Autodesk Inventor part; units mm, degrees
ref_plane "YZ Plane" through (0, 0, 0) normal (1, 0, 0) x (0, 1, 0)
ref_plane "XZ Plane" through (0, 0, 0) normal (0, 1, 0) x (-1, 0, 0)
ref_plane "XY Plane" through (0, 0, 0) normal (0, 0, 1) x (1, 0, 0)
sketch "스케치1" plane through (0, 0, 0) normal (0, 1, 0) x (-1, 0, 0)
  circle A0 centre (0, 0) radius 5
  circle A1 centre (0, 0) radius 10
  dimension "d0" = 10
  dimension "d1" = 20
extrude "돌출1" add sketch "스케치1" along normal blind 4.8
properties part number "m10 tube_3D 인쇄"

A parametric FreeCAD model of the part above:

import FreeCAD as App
import Part
import Sketcher
Q = App.Units.Quantity

doc = App.newDocument("Part")
params = doc.addObject("Spreadsheet::Sheet", "Params")
for row, (alias, value) in enumerate([
    ("sketch1_diameter", "20 mm"),
    ("sketch1_diameter2", "10 mm"),
    ("pad1_length", "4.8 mm"),
], start=1):
    params.set(f"A{row}", alias)
    params.set(f"B{row}", "=" + value)
    params.setAlias(f"B{row}", alias)

body = doc.addObject("PartDesign::Body", "Body")

sketch1 = doc.addObject("Sketcher::SketchObject", "Sketch")
body.addObject(sketch1)
sketch1.AttachmentSupport = (doc.XZ_Plane, [""])
sketch1.MapMode = "FlatFace"
sketch1.addGeometry(Part.Circle(App.Vector(0, 0, 0), App.Vector(0, 0, 1), 10), False)
sketch1.addGeometry(Part.Circle(App.Vector(0, 0, 0), App.Vector(0, 0, 1), 5), False)
sketch1.addConstraint(Sketcher.Constraint("Coincident", 0, 3, -1, 1))
sketch1.addConstraint(Sketcher.Constraint("Coincident", 1, 3, -1, 1))
sketch1.addConstraint(Sketcher.Constraint("Diameter", 0, Q("20 mm")))
sketch1.addConstraint(Sketcher.Constraint("Diameter", 1, Q("10 mm")))
sketch1.setExpression("Constraints[2]", "Params.sketch1_diameter")
sketch1.setExpression("Constraints[3]", "Params.sketch1_diameter2")
pad1 = doc.addObject("PartDesign::Pad", "Pad")
body.addObject(pad1)
pad1.Profile = sketch1
pad1.setExpression("Length", "Params.pad1_length")
pad1.Reversed = True

doc.recompute()
